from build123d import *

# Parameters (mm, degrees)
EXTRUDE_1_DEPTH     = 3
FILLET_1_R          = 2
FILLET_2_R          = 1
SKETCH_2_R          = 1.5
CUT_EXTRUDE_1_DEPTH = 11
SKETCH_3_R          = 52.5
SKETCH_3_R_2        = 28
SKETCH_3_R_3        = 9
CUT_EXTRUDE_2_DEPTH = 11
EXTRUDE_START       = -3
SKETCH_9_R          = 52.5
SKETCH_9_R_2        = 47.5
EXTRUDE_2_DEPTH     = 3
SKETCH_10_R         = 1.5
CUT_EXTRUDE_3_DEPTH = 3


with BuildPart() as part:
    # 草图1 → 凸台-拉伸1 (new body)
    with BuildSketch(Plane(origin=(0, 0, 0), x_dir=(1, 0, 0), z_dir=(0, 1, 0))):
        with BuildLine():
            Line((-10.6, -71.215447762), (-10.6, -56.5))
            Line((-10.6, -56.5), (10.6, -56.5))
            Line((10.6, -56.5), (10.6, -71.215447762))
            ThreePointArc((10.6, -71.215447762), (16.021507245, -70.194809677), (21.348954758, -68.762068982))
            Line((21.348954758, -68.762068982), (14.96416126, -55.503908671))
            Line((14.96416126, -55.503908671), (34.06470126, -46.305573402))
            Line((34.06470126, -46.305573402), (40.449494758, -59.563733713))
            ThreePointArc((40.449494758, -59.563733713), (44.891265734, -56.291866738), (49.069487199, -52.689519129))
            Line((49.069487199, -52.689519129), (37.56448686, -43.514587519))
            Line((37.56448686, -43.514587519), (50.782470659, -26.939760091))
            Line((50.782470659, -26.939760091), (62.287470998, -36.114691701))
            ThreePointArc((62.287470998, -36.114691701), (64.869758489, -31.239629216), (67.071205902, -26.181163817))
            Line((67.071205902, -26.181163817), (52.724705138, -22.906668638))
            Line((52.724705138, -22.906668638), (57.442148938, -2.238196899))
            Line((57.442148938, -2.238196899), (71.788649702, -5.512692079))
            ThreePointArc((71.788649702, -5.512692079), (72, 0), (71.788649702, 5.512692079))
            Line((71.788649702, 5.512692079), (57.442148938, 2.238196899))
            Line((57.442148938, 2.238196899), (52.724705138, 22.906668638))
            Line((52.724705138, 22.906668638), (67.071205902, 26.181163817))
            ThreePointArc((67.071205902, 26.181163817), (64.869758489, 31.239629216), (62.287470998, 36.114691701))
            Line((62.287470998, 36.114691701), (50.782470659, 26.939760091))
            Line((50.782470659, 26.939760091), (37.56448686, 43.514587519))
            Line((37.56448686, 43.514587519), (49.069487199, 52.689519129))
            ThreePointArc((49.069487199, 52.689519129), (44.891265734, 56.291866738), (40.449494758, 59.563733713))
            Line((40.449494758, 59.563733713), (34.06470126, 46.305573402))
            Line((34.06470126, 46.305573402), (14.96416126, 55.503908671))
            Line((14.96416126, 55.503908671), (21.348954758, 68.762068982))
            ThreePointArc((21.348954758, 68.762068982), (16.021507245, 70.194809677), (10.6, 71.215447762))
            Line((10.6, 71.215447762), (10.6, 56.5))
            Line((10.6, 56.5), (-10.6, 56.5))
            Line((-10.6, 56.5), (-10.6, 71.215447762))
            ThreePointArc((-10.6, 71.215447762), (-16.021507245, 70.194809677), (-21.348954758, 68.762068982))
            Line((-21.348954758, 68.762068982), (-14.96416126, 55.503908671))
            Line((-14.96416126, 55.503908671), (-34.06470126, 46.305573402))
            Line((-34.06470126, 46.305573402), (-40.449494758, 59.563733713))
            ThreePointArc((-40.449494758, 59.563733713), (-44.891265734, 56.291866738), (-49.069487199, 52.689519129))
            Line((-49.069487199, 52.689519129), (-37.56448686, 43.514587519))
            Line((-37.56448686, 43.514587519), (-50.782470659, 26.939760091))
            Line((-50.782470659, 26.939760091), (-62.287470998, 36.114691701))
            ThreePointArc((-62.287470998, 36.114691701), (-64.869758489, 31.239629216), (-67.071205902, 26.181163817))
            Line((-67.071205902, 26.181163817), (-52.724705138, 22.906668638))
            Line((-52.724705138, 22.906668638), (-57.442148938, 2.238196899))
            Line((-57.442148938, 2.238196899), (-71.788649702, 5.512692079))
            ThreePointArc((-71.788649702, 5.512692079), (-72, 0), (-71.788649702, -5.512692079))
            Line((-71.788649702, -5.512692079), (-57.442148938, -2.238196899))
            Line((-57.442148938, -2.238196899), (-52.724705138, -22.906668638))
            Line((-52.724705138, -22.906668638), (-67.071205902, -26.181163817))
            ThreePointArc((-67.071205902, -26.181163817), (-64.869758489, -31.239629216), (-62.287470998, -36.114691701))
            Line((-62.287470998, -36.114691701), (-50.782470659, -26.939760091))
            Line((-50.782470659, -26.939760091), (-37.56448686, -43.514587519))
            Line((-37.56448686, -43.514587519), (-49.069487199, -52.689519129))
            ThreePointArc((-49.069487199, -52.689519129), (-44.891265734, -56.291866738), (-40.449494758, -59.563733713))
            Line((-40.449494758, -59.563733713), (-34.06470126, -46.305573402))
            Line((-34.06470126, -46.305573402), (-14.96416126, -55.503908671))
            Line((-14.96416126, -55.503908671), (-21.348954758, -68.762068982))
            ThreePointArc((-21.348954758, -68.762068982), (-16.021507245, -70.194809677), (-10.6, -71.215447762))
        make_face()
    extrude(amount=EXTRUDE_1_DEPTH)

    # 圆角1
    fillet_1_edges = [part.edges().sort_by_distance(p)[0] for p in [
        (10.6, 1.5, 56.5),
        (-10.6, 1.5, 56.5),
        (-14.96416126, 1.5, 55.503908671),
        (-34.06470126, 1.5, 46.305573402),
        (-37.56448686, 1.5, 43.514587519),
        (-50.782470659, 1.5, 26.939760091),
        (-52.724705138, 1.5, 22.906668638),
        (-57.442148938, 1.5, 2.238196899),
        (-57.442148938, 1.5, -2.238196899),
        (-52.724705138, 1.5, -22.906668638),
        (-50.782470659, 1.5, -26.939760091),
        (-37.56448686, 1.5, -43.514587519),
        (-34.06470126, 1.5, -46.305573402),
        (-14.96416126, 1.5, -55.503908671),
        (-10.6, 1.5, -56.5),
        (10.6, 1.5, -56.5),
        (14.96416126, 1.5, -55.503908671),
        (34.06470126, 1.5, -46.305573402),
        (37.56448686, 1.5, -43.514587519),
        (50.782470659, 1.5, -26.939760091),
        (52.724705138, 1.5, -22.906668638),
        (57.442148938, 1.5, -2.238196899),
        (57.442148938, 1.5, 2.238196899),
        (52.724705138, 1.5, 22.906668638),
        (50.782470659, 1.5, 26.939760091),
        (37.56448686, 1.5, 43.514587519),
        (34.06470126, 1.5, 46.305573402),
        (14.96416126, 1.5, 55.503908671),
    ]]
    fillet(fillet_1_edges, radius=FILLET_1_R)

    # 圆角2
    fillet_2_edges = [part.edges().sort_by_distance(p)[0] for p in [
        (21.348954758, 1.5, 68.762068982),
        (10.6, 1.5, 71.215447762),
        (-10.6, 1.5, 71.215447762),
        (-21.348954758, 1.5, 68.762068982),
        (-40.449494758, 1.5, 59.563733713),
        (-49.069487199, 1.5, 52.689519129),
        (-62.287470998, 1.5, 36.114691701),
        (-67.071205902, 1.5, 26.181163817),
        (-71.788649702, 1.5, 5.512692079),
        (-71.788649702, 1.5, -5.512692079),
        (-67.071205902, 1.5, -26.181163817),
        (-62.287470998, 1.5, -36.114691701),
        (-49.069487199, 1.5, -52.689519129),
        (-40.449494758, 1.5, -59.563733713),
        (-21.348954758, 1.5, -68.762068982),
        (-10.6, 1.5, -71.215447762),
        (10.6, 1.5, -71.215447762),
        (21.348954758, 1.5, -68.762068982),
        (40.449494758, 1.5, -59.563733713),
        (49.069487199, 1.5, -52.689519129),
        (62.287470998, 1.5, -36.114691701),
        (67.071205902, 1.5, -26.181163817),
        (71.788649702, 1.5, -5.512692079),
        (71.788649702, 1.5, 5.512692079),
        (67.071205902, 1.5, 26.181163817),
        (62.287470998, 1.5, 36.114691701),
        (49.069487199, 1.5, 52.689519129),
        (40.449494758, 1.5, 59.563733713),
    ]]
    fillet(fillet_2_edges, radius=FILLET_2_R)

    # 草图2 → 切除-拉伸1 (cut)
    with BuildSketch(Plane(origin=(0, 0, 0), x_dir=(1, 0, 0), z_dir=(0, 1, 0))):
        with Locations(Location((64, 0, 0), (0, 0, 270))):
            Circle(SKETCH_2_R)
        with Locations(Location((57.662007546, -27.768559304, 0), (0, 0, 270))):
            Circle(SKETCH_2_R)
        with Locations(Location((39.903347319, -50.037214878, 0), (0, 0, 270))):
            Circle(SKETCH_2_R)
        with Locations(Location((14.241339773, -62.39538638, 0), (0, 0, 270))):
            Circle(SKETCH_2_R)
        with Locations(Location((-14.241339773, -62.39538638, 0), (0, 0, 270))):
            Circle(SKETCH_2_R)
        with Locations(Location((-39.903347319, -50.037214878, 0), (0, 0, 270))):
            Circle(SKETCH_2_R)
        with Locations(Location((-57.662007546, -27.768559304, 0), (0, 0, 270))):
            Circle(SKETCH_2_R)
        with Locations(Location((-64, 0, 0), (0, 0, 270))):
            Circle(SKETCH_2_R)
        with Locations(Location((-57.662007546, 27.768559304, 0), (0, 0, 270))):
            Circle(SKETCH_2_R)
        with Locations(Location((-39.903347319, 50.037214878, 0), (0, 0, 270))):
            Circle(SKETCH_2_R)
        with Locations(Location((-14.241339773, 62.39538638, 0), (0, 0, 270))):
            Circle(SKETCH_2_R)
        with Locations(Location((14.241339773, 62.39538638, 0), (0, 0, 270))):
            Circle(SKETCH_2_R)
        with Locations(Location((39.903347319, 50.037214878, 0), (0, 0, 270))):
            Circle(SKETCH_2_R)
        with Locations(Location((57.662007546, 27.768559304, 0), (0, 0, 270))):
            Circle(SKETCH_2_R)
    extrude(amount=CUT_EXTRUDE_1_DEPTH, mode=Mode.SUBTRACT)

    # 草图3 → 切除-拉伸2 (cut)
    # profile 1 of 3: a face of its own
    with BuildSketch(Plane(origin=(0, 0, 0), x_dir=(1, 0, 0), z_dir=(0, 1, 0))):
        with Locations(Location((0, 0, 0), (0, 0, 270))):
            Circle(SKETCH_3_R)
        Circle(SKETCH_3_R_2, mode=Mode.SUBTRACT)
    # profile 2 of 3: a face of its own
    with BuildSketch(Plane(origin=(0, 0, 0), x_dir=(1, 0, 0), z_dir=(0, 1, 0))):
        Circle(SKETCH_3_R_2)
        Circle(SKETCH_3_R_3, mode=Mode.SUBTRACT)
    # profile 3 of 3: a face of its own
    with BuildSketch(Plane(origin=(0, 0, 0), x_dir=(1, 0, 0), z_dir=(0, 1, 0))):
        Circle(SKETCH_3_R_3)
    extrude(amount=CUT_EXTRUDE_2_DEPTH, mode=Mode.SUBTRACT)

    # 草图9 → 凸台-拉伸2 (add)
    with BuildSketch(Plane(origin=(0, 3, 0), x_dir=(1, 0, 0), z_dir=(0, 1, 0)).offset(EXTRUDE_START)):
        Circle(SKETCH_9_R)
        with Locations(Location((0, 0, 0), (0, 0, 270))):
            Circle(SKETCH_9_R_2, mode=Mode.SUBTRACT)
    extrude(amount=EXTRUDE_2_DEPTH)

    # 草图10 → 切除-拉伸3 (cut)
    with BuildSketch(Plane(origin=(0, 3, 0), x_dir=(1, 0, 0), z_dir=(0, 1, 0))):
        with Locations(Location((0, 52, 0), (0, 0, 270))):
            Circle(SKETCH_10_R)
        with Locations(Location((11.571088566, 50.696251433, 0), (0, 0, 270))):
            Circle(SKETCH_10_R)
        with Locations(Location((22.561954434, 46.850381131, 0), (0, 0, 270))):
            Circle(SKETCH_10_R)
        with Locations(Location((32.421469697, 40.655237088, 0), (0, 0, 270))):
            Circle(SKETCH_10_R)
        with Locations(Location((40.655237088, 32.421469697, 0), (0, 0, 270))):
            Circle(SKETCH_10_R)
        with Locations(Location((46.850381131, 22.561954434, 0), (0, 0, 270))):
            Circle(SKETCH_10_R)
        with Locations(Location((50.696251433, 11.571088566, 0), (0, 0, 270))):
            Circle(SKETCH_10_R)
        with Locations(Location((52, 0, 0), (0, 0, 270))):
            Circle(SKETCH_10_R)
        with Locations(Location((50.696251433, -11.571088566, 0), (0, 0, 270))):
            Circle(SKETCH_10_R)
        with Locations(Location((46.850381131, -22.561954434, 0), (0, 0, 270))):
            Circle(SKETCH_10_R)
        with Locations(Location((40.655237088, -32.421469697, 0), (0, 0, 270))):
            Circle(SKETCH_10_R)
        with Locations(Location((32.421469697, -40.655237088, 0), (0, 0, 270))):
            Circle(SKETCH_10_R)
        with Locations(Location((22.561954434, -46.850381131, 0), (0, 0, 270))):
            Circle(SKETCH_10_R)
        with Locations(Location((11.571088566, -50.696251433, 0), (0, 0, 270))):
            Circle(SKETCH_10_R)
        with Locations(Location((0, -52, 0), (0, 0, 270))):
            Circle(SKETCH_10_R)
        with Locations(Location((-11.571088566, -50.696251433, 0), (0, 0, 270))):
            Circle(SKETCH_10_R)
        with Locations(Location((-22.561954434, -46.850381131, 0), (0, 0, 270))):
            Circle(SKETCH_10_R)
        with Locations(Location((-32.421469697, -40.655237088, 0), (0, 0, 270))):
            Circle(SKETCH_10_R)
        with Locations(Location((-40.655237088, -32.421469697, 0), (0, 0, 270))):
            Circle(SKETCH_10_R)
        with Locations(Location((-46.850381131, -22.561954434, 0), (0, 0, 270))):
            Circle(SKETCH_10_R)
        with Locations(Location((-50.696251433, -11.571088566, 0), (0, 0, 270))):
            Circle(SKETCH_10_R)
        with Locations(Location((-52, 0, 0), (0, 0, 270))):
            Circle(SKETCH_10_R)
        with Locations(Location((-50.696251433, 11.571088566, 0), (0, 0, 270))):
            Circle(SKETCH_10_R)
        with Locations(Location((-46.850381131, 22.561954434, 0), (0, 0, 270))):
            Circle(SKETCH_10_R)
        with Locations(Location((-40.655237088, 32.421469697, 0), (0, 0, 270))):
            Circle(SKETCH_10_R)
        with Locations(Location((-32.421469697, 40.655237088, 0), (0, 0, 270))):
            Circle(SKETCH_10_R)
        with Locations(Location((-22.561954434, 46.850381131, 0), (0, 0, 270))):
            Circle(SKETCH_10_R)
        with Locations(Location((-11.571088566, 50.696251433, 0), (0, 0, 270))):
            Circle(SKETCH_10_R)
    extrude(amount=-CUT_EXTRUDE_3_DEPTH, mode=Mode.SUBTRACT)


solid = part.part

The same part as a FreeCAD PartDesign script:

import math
import FreeCAD as App
import Part
import Sketcher
from FreeCAD import Vector
Q = App.Units.Quantity


def edges_at(feature, points):
    """Names of the edges that pass closest to the given points."""
    edges = feature.Shape.Edges
    near = lambda p: min(range(len(edges)), key=lambda i: edges[i].distToShape(Part.Vertex(*p))[0])
    return sorted({f"Edge{near(p) + 1}" for p in points})

doc = App.newDocument("Part")
body = doc.addObject("PartDesign::Body", "Body")

sketch1 = body.newObject("Sketcher::SketchObject", "Sketch")
sketch1.AttachmentSupport = (doc.getObject("XZ_Plane"), [""])
sketch1.MapMode = "FlatFace"
sketch1.addGeometry([
    Part.LineSegment(Vector(-11, 71, 0), Vector(-11, 56, 0)),
    Part.LineSegment(Vector(-11, 56, 0), Vector(11, 56, 0)),
    Part.LineSegment(Vector(11, 56, 0), Vector(11, 71, 0)),
    Part.ArcOfCircle(Part.Circle(Vector(0, 0, 0), Vector(0, 0, 1), 72), math.radians(72.75), math.radians(81.53)),
    Part.LineSegment(Vector(21, 69, 0), Vector(15, 56, 0)),
    Part.LineSegment(Vector(15, 56, 0), Vector(34, 46, 0)),
    Part.LineSegment(Vector(34, 46, 0), Vector(40, 60, 0)),
    Part.ArcOfCircle(Part.Circle(Vector(0, 0, 0), Vector(0, 0, 1), 72), math.radians(47.04), math.radians(55.82)),
    Part.LineSegment(Vector(49, 53, 0), Vector(38, 44, 0)),
    Part.LineSegment(Vector(38, 44, 0), Vector(51, 27, 0)),
    Part.LineSegment(Vector(51, 27, 0), Vector(62, 36, 0)),
    Part.ArcOfCircle(Part.Circle(Vector(0, 0, 0), Vector(0, 0, 1), 72), math.radians(21.32), math.radians(30.11)),
    Part.LineSegment(Vector(67, 26, 0), Vector(53, 23, 0)),
    Part.LineSegment(Vector(53, 23, 0), Vector(57, 2, 0)),
    Part.LineSegment(Vector(57, 2, 0), Vector(72, 6, 0)),
    Part.ArcOfCircle(Part.Circle(Vector(0, 0, 0), Vector(0, 0, 1), 72), math.radians(-4.39), math.radians(4.39)),
    Part.LineSegment(Vector(72, -6, 0), Vector(57, -2, 0)),
    Part.LineSegment(Vector(57, -2, 0), Vector(53, -23, 0)),
    Part.LineSegment(Vector(53, -23, 0), Vector(67, -26, 0)),
    Part.ArcOfCircle(Part.Circle(Vector(0, 0, 0), Vector(0, 0, 1), 72), math.radians(-30.11), math.radians(-21.32)),
    Part.LineSegment(Vector(62, -36, 0), Vector(51, -27, 0)),
    Part.LineSegment(Vector(51, -27, 0), Vector(38, -44, 0)),
    Part.LineSegment(Vector(38, -44, 0), Vector(49, -53, 0)),
    Part.ArcOfCircle(Part.Circle(Vector(0, 0, 0), Vector(0, 0, 1), 72), math.radians(-55.82), math.radians(-47.04)),
    Part.LineSegment(Vector(40, -60, 0), Vector(34, -46, 0)),
    Part.LineSegment(Vector(34, -46, 0), Vector(15, -56, 0)),
    Part.LineSegment(Vector(15, -56, 0), Vector(21, -69, 0)),
    Part.ArcOfCircle(Part.Circle(Vector(0, 0, 0), Vector(0, 0, 1), 72), math.radians(-81.53), math.radians(-72.75)),
    Part.LineSegment(Vector(11, -71, 0), Vector(11, -56, 0)),
    Part.LineSegment(Vector(11, -56, 0), Vector(-11, -56, 0)),
    Part.LineSegment(Vector(-11, -56, 0), Vector(-11, -71, 0)),
    Part.ArcOfCircle(Part.Circle(Vector(0, 0, 0), Vector(0, 0, 1), 72), math.radians(-107.25), math.radians(-98.47)),
    Part.LineSegment(Vector(-21, -69, 0), Vector(-15, -56, 0)),
    Part.LineSegment(Vector(-15, -56, 0), Vector(-34, -46, 0)),
    Part.LineSegment(Vector(-34, -46, 0), Vector(-40, -60, 0)),
    Part.ArcOfCircle(Part.Circle(Vector(0, 0, 0), Vector(0, 0, 1), 72), math.radians(-132.96), math.radians(-124.18)),
    Part.LineSegment(Vector(-49, -53, 0), Vector(-38, -44, 0)),
    Part.LineSegment(Vector(-38, -44, 0), Vector(-51, -27, 0)),
    Part.LineSegment(Vector(-51, -27, 0), Vector(-62, -36, 0)),
    Part.ArcOfCircle(Part.Circle(Vector(0, 0, 0), Vector(0, 0, 1), 72), math.radians(-158.68), math.radians(-149.89)),
    Part.LineSegment(Vector(-67, -26, 0), Vector(-53, -23, 0)),
    Part.LineSegment(Vector(-53, -23, 0), Vector(-57, -2, 0)),
    Part.LineSegment(Vector(-57, -2, 0), Vector(-72, -6, 0)),
    Part.ArcOfCircle(Part.Circle(Vector(0, 0, 0), Vector(0, 0, 1), 72), math.radians(175.61), math.radians(184.39)),
    Part.LineSegment(Vector(-72, 6, 0), Vector(-57, 2, 0)),
    Part.LineSegment(Vector(-57, 2, 0), Vector(-53, 23, 0)),
    Part.LineSegment(Vector(-53, 23, 0), Vector(-67, 26, 0)),
    Part.ArcOfCircle(Part.Circle(Vector(0, 0, 0), Vector(0, 0, 1), 72), math.radians(149.89), math.radians(158.68)),
    Part.LineSegment(Vector(-62, 36, 0), Vector(-51, 27, 0)),
    Part.LineSegment(Vector(-51, 27, 0), Vector(-38, 44, 0)),
    Part.LineSegment(Vector(-38, 44, 0), Vector(-49, 53, 0)),
    Part.ArcOfCircle(Part.Circle(Vector(0, 0, 0), Vector(0, 0, 1), 72), math.radians(124.18), math.radians(132.96)),
    Part.LineSegment(Vector(-40, 60, 0), Vector(-34, 46, 0)),
    Part.LineSegment(Vector(-34, 46, 0), Vector(-15, 56, 0)),
    Part.LineSegment(Vector(-15, 56, 0), Vector(-21, 69, 0)),
    Part.ArcOfCircle(Part.Circle(Vector(0, 0, 0), Vector(0, 0, 1), 72), math.radians(98.47), math.radians(107.25)),
], False)
sketch1.addConstraint([
    Sketcher.Constraint("Coincident", 0, 2, 1, 1),
    Sketcher.Constraint("Coincident", 1, 2, 2, 1),
    Sketcher.Constraint("Coincident", 2, 2, 3, 2),
    Sketcher.Constraint("Coincident", 3, 1, 4, 1),
    Sketcher.Constraint("Coincident", 4, 2, 5, 1),
    Sketcher.Constraint("Coincident", 5, 2, 6, 1),
    Sketcher.Constraint("Coincident", 6, 2, 7, 2),
    Sketcher.Constraint("Coincident", 7, 1, 8, 1),
    Sketcher.Constraint("Coincident", 8, 2, 9, 1),
    Sketcher.Constraint("Coincident", 9, 2, 10, 1),
    Sketcher.Constraint("Coincident", 10, 2, 11, 2),
    Sketcher.Constraint("Coincident", 11, 1, 12, 1),
    Sketcher.Constraint("Coincident", 12, 2, 13, 1),
    Sketcher.Constraint("Coincident", 13, 2, 14, 1),
    Sketcher.Constraint("Coincident", 14, 2, 15, 2),
    Sketcher.Constraint("Coincident", 15, 1, 16, 1),
    Sketcher.Constraint("Coincident", 16, 2, 17, 1),
    Sketcher.Constraint("Coincident", 17, 2, 18, 1),
    Sketcher.Constraint("Coincident", 18, 2, 19, 2),
    Sketcher.Constraint("Coincident", 19, 1, 20, 1),
    Sketcher.Constraint("Coincident", 20, 2, 21, 1),
    Sketcher.Constraint("Coincident", 21, 2, 22, 1),
    Sketcher.Constraint("Coincident", 22, 2, 23, 2),
    Sketcher.Constraint("Coincident", 23, 1, 24, 1),
    Sketcher.Constraint("Coincident", 24, 2, 25, 1),
    Sketcher.Constraint("Coincident", 25, 2, 26, 1),
    Sketcher.Constraint("Coincident", 26, 2, 27, 2),
    Sketcher.Constraint("Coincident", 27, 1, 28, 1),
    Sketcher.Constraint("Coincident", 28, 2, 29, 1),
    Sketcher.Constraint("Coincident", 29, 2, 30, 1),
    Sketcher.Constraint("Coincident", 30, 2, 31, 2),
    Sketcher.Constraint("Coincident", 31, 1, 32, 1),
    Sketcher.Constraint("Coincident", 32, 2, 33, 1),
    Sketcher.Constraint("Coincident", 33, 2, 34, 1),
    Sketcher.Constraint("Coincident", 34, 2, 35, 2),
    Sketcher.Constraint("Coincident", 35, 1, 36, 1),
    Sketcher.Constraint("Coincident", 36, 2, 37, 1),
    Sketcher.Constraint("Coincident", 37, 2, 38, 1),
    Sketcher.Constraint("Coincident", 38, 2, 39, 2),
    Sketcher.Constraint("Coincident", 39, 1, 40, 1),
    Sketcher.Constraint("Coincident", 40, 2, 41, 1),
    Sketcher.Constraint("Coincident", 41, 2, 42, 1),
    Sketcher.Constraint("Coincident", 42, 2, 43, 2),
    Sketcher.Constraint("Coincident", 43, 1, 44, 1),
    Sketcher.Constraint("Coincident", 44, 2, 45, 1),
    Sketcher.Constraint("Coincident", 45, 2, 46, 1),
    Sketcher.Constraint("Coincident", 46, 2, 47, 2),
    Sketcher.Constraint("Coincident", 47, 1, 48, 1),
    Sketcher.Constraint("Coincident", 48, 2, 49, 1),
    Sketcher.Constraint("Coincident", 49, 2, 50, 1),
    Sketcher.Constraint("Coincident", 50, 2, 51, 2),
    Sketcher.Constraint("Coincident", 51, 1, 52, 1),
    Sketcher.Constraint("Coincident", 52, 2, 53, 1),
    Sketcher.Constraint("Coincident", 53, 2, 54, 1),
    Sketcher.Constraint("Coincident", 54, 2, 55, 2),
    Sketcher.Constraint("Coincident", 55, 1, 0, 1),
    Sketcher.Constraint("Vertical", 0),
    Sketcher.Constraint("Horizontal", 1),
    Sketcher.Constraint("Vertical", 2),
    Sketcher.Constraint("Vertical", 28),
    Sketcher.Constraint("Horizontal", 29),
    Sketcher.Constraint("Vertical", 30),
    Sketcher.Constraint("Coincident", 3, 3, -1, 1),
    Sketcher.Constraint("Coincident", 7, 3, -1, 1),
    Sketcher.Constraint("Coincident", 11, 3, -1, 1),
    Sketcher.Constraint("Coincident", 15, 3, -1, 1),
    Sketcher.Constraint("Coincident", 19, 3, -1, 1),
    Sketcher.Constraint("Coincident", 23, 3, -1, 1),
    Sketcher.Constraint("Coincident", 27, 3, -1, 1),
    Sketcher.Constraint("Coincident", 31, 3, -1, 1),
    Sketcher.Constraint("Coincident", 35, 3, -1, 1),
    Sketcher.Constraint("Coincident", 39, 3, -1, 1),
    Sketcher.Constraint("Coincident", 43, 3, -1, 1),
    Sketcher.Constraint("Coincident", 47, 3, -1, 1),
    Sketcher.Constraint("Coincident", 51, 3, -1, 1),
    Sketcher.Constraint("Coincident", 55, 3, -1, 1),
    Sketcher.Constraint("Equal", 3, 7),
    Sketcher.Constraint("Equal", 7, 11),
    Sketcher.Constraint("Equal", 11, 15),
    Sketcher.Constraint("Equal", 15, 19),
    Sketcher.Constraint("Equal", 19, 23),
    Sketcher.Constraint("Equal", 23, 27),
    Sketcher.Constraint("Equal", 27, 31),
    Sketcher.Constraint("Equal", 31, 35),
    Sketcher.Constraint("Equal", 35, 39),
    Sketcher.Constraint("Equal", 39, 43),
    Sketcher.Constraint("Equal", 43, 47),
    Sketcher.Constraint("Equal", 47, 51),
    Sketcher.Constraint("Equal", 51, 55),
    Sketcher.Constraint("Symmetric", 0, 2, 28, 2, -1, 1),
    Sketcher.Constraint("Symmetric", 4, 2, 32, 2, -1, 1),
    Sketcher.Constraint("Symmetric", 5, 2, 33, 2, -1, 1),
    Sketcher.Constraint("Symmetric", 8, 2, 36, 2, -1, 1),
    Sketcher.Constraint("Symmetric", 9, 2, 37, 2, -1, 1),
    Sketcher.Constraint("Symmetric", 12, 2, 40, 2, -1, 1),
    Sketcher.Constraint("Symmetric", 13, 2, 41, 2, -1, 1),
    Sketcher.Constraint("Symmetric", 16, 2, 44, 2, -1, 1),
    Sketcher.Constraint("Symmetric", 17, 2, 45, 2, -1, 1),
    Sketcher.Constraint("Symmetric", 20, 2, 48, 2, -1, 1),
    Sketcher.Constraint("Symmetric", 21, 2, 49, 2, -1, 1),
    Sketcher.Constraint("Symmetric", 24, 2, 52, 2, -1, 1),
    Sketcher.Constraint("Symmetric", 25, 2, 53, 2, -1, 1),
    Sketcher.Constraint("Symmetric", 25, 2, 32, 2, -2),
    Sketcher.Constraint("Symmetric", 24, 2, 33, 2, -2),
    Sketcher.Constraint("Symmetric", 21, 2, 36, 2, -2),
    Sketcher.Constraint("Symmetric", 20, 2, 37, 2, -2),
    Sketcher.Constraint("Symmetric", 17, 2, 40, 2, -2),
    Sketcher.Constraint("Symmetric", 16, 2, 41, 2, -2),
    Sketcher.Constraint("Perpendicular", 4, 5),
    Sketcher.Constraint("Perpendicular", 5, 6),
    Sketcher.Constraint("Perpendicular", 8, 9),
    Sketcher.Constraint("Perpendicular", 9, 10),
    Sketcher.Constraint("Perpendicular", 12, 13),
    Sketcher.Constraint("Perpendicular", 13, 14),
    Sketcher.Constraint("Perpendicular", 16, 17),
    Sketcher.Constraint("Perpendicular", 17, 18),
    Sketcher.Constraint("Perpendicular", 20, 21),
    Sketcher.Constraint("Perpendicular", 21, 22),
    Sketcher.Constraint("Perpendicular", 24, 25),
    Sketcher.Constraint("Perpendicular", 25, 26),
    Sketcher.Constraint("Parallel", 6, 32),
    Sketcher.Constraint("Perpendicular", 33, 34),
    Sketcher.Constraint("Parallel", 10, 36),
    Sketcher.Constraint("Perpendicular", 37, 38),
    Sketcher.Constraint("Parallel", 14, 40),
    Sketcher.Constraint("Perpendicular", 41, 42),
    Sketcher.Constraint("Parallel", 18, 44),
    Sketcher.Constraint("Perpendicular", 45, 46),
    Sketcher.Constraint("Parallel", 22, 48),
    Sketcher.Constraint("Perpendicular", 49, 50),
    Sketcher.Constraint("Parallel", 26, 52),
    Sketcher.Constraint("Perpendicular", 53, 54),
    Sketcher.Constraint("Horizontal", 27, 1, 30, 2),
    Sketcher.Constraint("Horizontal", 2, 2, 55, 1),
    Sketcher.Constraint("Equal", 4, 6),
    Sketcher.Constraint("Equal", 6, 8),
    Sketcher.Constraint("Equal", 5, 9),
    Sketcher.Constraint("Equal", 8, 10),
    Sketcher.Constraint("Equal", 10, 12),
    Sketcher.Constraint("Equal", 9, 13),
    Sketcher.Constraint("Equal", 12, 14),
    Sketcher.Constraint("Radius", 3, Q("72 mm")),
    Sketcher.Constraint("DistanceX", 1, 1, 1, 2, Q("21.2 mm")),
    Sketcher.Constraint("Distance", 5, Q("21.2 mm")),
    Sketcher.Constraint("DistanceY", -1, 1, 0, 2, Q("56.5 mm")),
    Sketcher.Constraint("DistanceX", -1, 1, 5, 2, Q("34.064701 mm")),
    Sketcher.Constraint("DistanceX", -1, 1, 4, 2, Q("14.964161 mm")),
    Sketcher.Constraint("DistanceY", -1, 1, 7, 1, Q("52.689519 mm")),
    Sketcher.Constraint("DistanceY", -1, 1, 12, 2, Q("22.906669 mm")),
])
pad1 = body.newObject("PartDesign::Pad", "Pad")
pad1.Profile = sketch1
pad1.Length = 3
pad1.Reversed = True
doc.recompute()

fillet = body.newObject("PartDesign::Fillet", "Fillet")
fillet.Base = (pad1, edges_at(pad1, [
    (10.6, 1.5, 56.5),
    (-10.6, 1.5, 56.5),
    (-14.964, 1.5, 55.504),
    (-34.065, 1.5, 46.306),
    (-37.564, 1.5, 43.515),
    (-50.782, 1.5, 26.94),
    (-52.725, 1.5, 22.907),
    (-57.442, 1.5, 2.238),
    (-57.442, 1.5, -2.238),
    (-52.725, 1.5, -22.907),
    (-50.782, 1.5, -26.94),
    (-37.564, 1.5, -43.515),
    (-34.065, 1.5, -46.306),
    (-14.964, 1.5, -55.504),
    (-10.6, 1.5, -56.5),
    (10.6, 1.5, -56.5),
    (14.964, 1.5, -55.504),
    (34.065, 1.5, -46.306),
    (37.564, 1.5, -43.515),
    (50.782, 1.5, -26.94),
    (52.725, 1.5, -22.907),
    (57.442, 1.5, -2.238),
    (57.442, 1.5, 2.238),
    (52.725, 1.5, 22.907),
    (50.782, 1.5, 26.94),
    (37.564, 1.5, 43.515),
    (34.065, 1.5, 46.306),
    (14.964, 1.5, 55.504),
]))
fillet.Radius = 2
doc.recompute()

fillet2 = body.newObject("PartDesign::Fillet", "Fillet001")
fillet2.Base = (fillet, edges_at(fillet, [
    (21.349, 1.5, 68.762),
    (10.6, 1.5, 71.215),
    (-10.6, 1.5, 71.215),
    (-21.349, 1.5, 68.762),
    (-40.449, 1.5, 59.564),
    (-49.069, 1.5, 52.69),
    (-62.287, 1.5, 36.115),
    (-67.071, 1.5, 26.181),
    (-71.789, 1.5, 5.513),
    (-71.789, 1.5, -5.513),
    (-67.071, 1.5, -26.181),
    (-62.287, 1.5, -36.115),
    (-49.069, 1.5, -52.69),
    (-40.449, 1.5, -59.564),
    (-21.349, 1.5, -68.762),
    (-10.6, 1.5, -71.215),
    (10.6, 1.5, -71.215),
    (21.349, 1.5, -68.762),
    (40.449, 1.5, -59.564),
    (49.069, 1.5, -52.69),
    (62.287, 1.5, -36.115),
    (67.071, 1.5, -26.181),
    (71.789, 1.5, -5.513),
    (71.789, 1.5, 5.513),
    (67.071, 1.5, 26.181),
    (62.287, 1.5, 36.115),
    (49.069, 1.5, 52.69),
    (40.449, 1.5, 59.564),
]))
fillet2.Radius = 1

sketch2 = body.newObject("Sketcher::SketchObject", "Sketch001")
sketch2.AttachmentSupport = (doc.getObject("XZ_Plane"), [""])
sketch2.MapMode = "FlatFace"
sketch2.addGeometry([
    Part.Circle(Vector(64, 0, 0), Vector(0, 0, 1), 1.5),
    Part.Circle(Vector(57.7, 27.8, 0), Vector(0, 0, 1), 1.5),
    Part.Circle(Vector(39.9, 50, 0), Vector(0, 0, 1), 1.5),
    Part.Circle(Vector(14.2, 62.4, 0), Vector(0, 0, 1), 1.5),
    Part.Circle(Vector(-14.2, 62.4, 0), Vector(0, 0, 1), 1.5),
    Part.Circle(Vector(-39.9, 50, 0), Vector(0, 0, 1), 1.5),
    Part.Circle(Vector(-57.7, 27.8, 0), Vector(0, 0, 1), 1.5),
    Part.Circle(Vector(-64, 0, 0), Vector(0, 0, 1), 1.5),
    Part.Circle(Vector(-57.7, -27.8, 0), Vector(0, 0, 1), 1.5),
    Part.Circle(Vector(-39.9, -50, 0), Vector(0, 0, 1), 1.5),
    Part.Circle(Vector(-14.2, -62.4, 0), Vector(0, 0, 1), 1.5),
    Part.Circle(Vector(14.2, -62.4, 0), Vector(0, 0, 1), 1.5),
    Part.Circle(Vector(39.9, -50, 0), Vector(0, 0, 1), 1.5),
    Part.Circle(Vector(57.7, -27.8, 0), Vector(0, 0, 1), 1.5),
], False)
sketch2.addConstraint([
    Sketcher.Constraint("Equal", 0, 1),
    Sketcher.Constraint("Equal", 1, 2),
    Sketcher.Constraint("Equal", 2, 3),
    Sketcher.Constraint("Equal", 3, 4),
    Sketcher.Constraint("Equal", 4, 5),
    Sketcher.Constraint("Equal", 5, 6),
    Sketcher.Constraint("Equal", 6, 7),
    Sketcher.Constraint("Equal", 7, 8),
    Sketcher.Constraint("Equal", 8, 9),
    Sketcher.Constraint("Equal", 9, 10),
    Sketcher.Constraint("Equal", 10, 11),
    Sketcher.Constraint("Equal", 11, 12),
    Sketcher.Constraint("Equal", 12, 13),
    Sketcher.Constraint("Symmetric", 0, 3, 7, 3, -1, 1),
    Sketcher.Constraint("Symmetric", 1, 3, 8, 3, -1, 1),
    Sketcher.Constraint("Symmetric", 2, 3, 9, 3, -1, 1),
    Sketcher.Constraint("Symmetric", 3, 3, 10, 3, -1, 1),
    Sketcher.Constraint("Symmetric", 4, 3, 11, 3, -1, 1),
    Sketcher.Constraint("Symmetric", 5, 3, 12, 3, -1, 1),
    Sketcher.Constraint("Symmetric", 6, 3, 13, 3, -1, 1),
    Sketcher.Constraint("Symmetric", 3, 3, 4, 3, -2),
    Sketcher.Constraint("Symmetric", 2, 3, 5, 3, -2),
    Sketcher.Constraint("Symmetric", 1, 3, 6, 3, -2),
    Sketcher.Constraint("PointOnObject", 0, 3, -1),
    Sketcher.Constraint("Diameter", 0, Q("3 mm")),
    Sketcher.Constraint("DistanceX", -1, 1, 0, 3, Q("64 mm")),
    Sketcher.Constraint("DistanceY", -1, 1, 1, 3, Q("27.768559 mm")),
    Sketcher.Constraint("DistanceX", -1, 1, 3, 3, Q("14.24134 mm")),
    Sketcher.Constraint("DistanceX", 2, 3, 1, 3, Q("17.75866 mm")),
    Sketcher.Constraint("DistanceY", 2, 3, 3, 3, Q("12.358172 mm")),
    Sketcher.Constraint("DistanceY", 9, 3, 5, 3, Q("100.07443 mm")),
    Sketcher.Constraint("DistanceX", -1, 1, 1, 3, Q("57.662008 mm")),
])
pocket1 = body.newObject("PartDesign::Pocket", "Pocket")
pocket1.Profile = sketch2
pocket1.Length = 11

sketch3 = body.newObject("Sketcher::SketchObject", "Sketch002")
sketch3.AttachmentSupport = (doc.getObject("XZ_Plane"), [""])
sketch3.MapMode = "FlatFace"
sketch3.addGeometry(Part.Circle(Vector(0, 0, 0), Vector(0, 0, 1), 52), False)
sketch3.addConstraint([
    Sketcher.Constraint("Coincident", 0, 3, -1, 1),
    Sketcher.Constraint("Diameter", 0, Q("105 mm")),
])
pocket2 = body.newObject("PartDesign::Pocket", "Pocket001")
pocket2.Profile = sketch3
pocket2.Length = 11

sketch4 = body.newObject("Sketcher::SketchObject", "Sketch003")
sketch4.AttachmentSupport = (doc.getObject("XZ_Plane"), [""])
sketch4.MapMode = "FlatFace"
sketch4.addGeometry([
    Part.Circle(Vector(0, 0, 0), Vector(0, 0, 1), 52),
    Part.Circle(Vector(0, 0, 0), Vector(0, 0, 1), 48),
], False)
sketch4.addConstraint([
    Sketcher.Constraint("Coincident", 0, 3, -1, 1),
    Sketcher.Constraint("Coincident", 1, 3, -1, 1),
    Sketcher.Constraint("Diameter", 0, Q("105 mm")),
    Sketcher.Constraint("Diameter", 1, Q("95 mm")),
])
pad2 = body.newObject("PartDesign::Pad", "Pad001")
pad2.Profile = sketch4
pad2.Length = 3
pad2.Reversed = True

sketch5 = body.newObject("Sketcher::SketchObject", "Sketch004")
sketch5.AttachmentSupport = (doc.getObject("XZ_Plane"), [""])
sketch5.MapMode = "FlatFace"
sketch5.AttachmentOffset = App.Placement(Vector(0, 0, -3), App.Rotation())
sketch5.addGeometry([
    Part.Circle(Vector(0, -52, 0), Vector(0, 0, 1), 1.5),
    Part.Circle(Vector(11.6, -50.7, 0), Vector(0, 0, 1), 1.5),
    Part.Circle(Vector(22.6, -46.9, 0), Vector(0, 0, 1), 1.5),
    Part.Circle(Vector(32.4, -40.7, 0), Vector(0, 0, 1), 1.5),
    Part.Circle(Vector(40.7, -32.4, 0), Vector(0, 0, 1), 1.5),
    Part.Circle(Vector(46.9, -22.6, 0), Vector(0, 0, 1), 1.5),
    Part.Circle(Vector(50.7, -11.6, 0), Vector(0, 0, 1), 1.5),
    Part.Circle(Vector(52, 0, 0), Vector(0, 0, 1), 1.5),
    Part.Circle(Vector(50.7, 11.6, 0), Vector(0, 0, 1), 1.5),
    Part.Circle(Vector(46.9, 22.6, 0), Vector(0, 0, 1), 1.5),
    Part.Circle(Vector(40.7, 32.4, 0), Vector(0, 0, 1), 1.5),
    Part.Circle(Vector(32.4, 40.7, 0), Vector(0, 0, 1), 1.5),
    Part.Circle(Vector(22.6, 46.9, 0), Vector(0, 0, 1), 1.5),
    Part.Circle(Vector(11.6, 50.7, 0), Vector(0, 0, 1), 1.5),
    Part.Circle(Vector(0, 52, 0), Vector(0, 0, 1), 1.5),
    Part.Circle(Vector(-11.6, 50.7, 0), Vector(0, 0, 1), 1.5),
    Part.Circle(Vector(-22.6, 46.9, 0), Vector(0, 0, 1), 1.5),
    Part.Circle(Vector(-32.4, 40.7, 0), Vector(0, 0, 1), 1.5),
    Part.Circle(Vector(-40.7, 32.4, 0), Vector(0, 0, 1), 1.5),
    Part.Circle(Vector(-46.9, 22.6, 0), Vector(0, 0, 1), 1.5),
    Part.Circle(Vector(-50.7, 11.6, 0), Vector(0, 0, 1), 1.5),
    Part.Circle(Vector(-52, 0, 0), Vector(0, 0, 1), 1.5),
    Part.Circle(Vector(-50.7, -11.6, 0), Vector(0, 0, 1), 1.5),
    Part.Circle(Vector(-46.9, -22.6, 0), Vector(0, 0, 1), 1.5),
    Part.Circle(Vector(-40.7, -32.4, 0), Vector(0, 0, 1), 1.5),
    Part.Circle(Vector(-32.4, -40.7, 0), Vector(0, 0, 1), 1.5),
    Part.Circle(Vector(-22.6, -46.9, 0), Vector(0, 0, 1), 1.5),
    Part.Circle(Vector(-11.6, -50.7, 0), Vector(0, 0, 1), 1.5),
], False)
sketch5.addConstraint([
    Sketcher.Constraint("Equal", 0, 1),
    Sketcher.Constraint("Equal", 1, 2),
    Sketcher.Constraint("Equal", 2, 3),
    Sketcher.Constraint("Equal", 3, 4),
    Sketcher.Constraint("Equal", 4, 5),
    Sketcher.Constraint("Equal", 5, 6),
    Sketcher.Constraint("Equal", 6, 7),
    Sketcher.Constraint("Equal", 7, 8),
    Sketcher.Constraint("Equal", 8, 9),
    Sketcher.Constraint("Equal", 9, 10),
    Sketcher.Constraint("Equal", 10, 11),
    Sketcher.Constraint("Equal", 11, 12),
    Sketcher.Constraint("Equal", 12, 13),
    Sketcher.Constraint("Equal", 13, 14),
    Sketcher.Constraint("Equal", 14, 15),
    Sketcher.Constraint("Equal", 15, 16),
    Sketcher.Constraint("Equal", 16, 17),
    Sketcher.Constraint("Equal", 17, 18),
    Sketcher.Constraint("Equal", 18, 19),
    Sketcher.Constraint("Equal", 19, 20),
    Sketcher.Constraint("Equal", 20, 21),
    Sketcher.Constraint("Equal", 21, 22),
    Sketcher.Constraint("Equal", 22, 23),
    Sketcher.Constraint("Equal", 23, 24),
    Sketcher.Constraint("Equal", 24, 25),
    Sketcher.Constraint("Equal", 25, 26),
    Sketcher.Constraint("Equal", 26, 27),
    Sketcher.Constraint("Symmetric", 0, 3, 14, 3, -1, 1),
    Sketcher.Constraint("Symmetric", 1, 3, 15, 3, -1, 1),
    Sketcher.Constraint("Symmetric", 2, 3, 16, 3, -1, 1),
    Sketcher.Constraint("Symmetric", 3, 3, 17, 3, -1, 1),
    Sketcher.Constraint("Symmetric", 4, 3, 18, 3, -1, 1),
    Sketcher.Constraint("Symmetric", 5, 3, 19, 3, -1, 1),
    Sketcher.Constraint("Symmetric", 6, 3, 20, 3, -1, 1),
    Sketcher.Constraint("Symmetric", 7, 3, 21, 3, -1, 1),
    Sketcher.Constraint("Symmetric", 8, 3, 22, 3, -1, 1),
    Sketcher.Constraint("Symmetric", 9, 3, 23, 3, -1, 1),
    Sketcher.Constraint("Symmetric", 10, 3, 24, 3, -1, 1),
    Sketcher.Constraint("Symmetric", 11, 3, 25, 3, -1, 1),
    Sketcher.Constraint("Symmetric", 12, 3, 26, 3, -1, 1),
    Sketcher.Constraint("Symmetric", 13, 3, 27, 3, -1, 1),
    Sketcher.Constraint("Symmetric", 13, 3, 15, 3, -2),
    Sketcher.Constraint("Symmetric", 12, 3, 16, 3, -2),
    Sketcher.Constraint("Symmetric", 11, 3, 17, 3, -2),
    Sketcher.Constraint("Symmetric", 10, 3, 18, 3, -2),
    Sketcher.Constraint("Symmetric", 9, 3, 19, 3, -2),
    Sketcher.Constraint("Symmetric", 8, 3, 20, 3, -2),
    Sketcher.Constraint("PointOnObject", 0, 3, -2),
    Sketcher.Constraint("PointOnObject", 7, 3, -1),
    Sketcher.Constraint("Diameter", 0, Q("3 mm")),
    Sketcher.Constraint("DistanceY", 0, 3, -1, 1, Q("52 mm")),
    Sketcher.Constraint("DistanceX", -1, 1, 7, 3, Q("52 mm")),
    Sketcher.Constraint("DistanceX", -1, 1, 1, 3, Q("11.571089 mm")),
    Sketcher.Constraint("DistanceY", 1, 3, -1, 1, Q("50.696251 mm")),
    Sketcher.Constraint("DistanceY", 2, 3, -1, 1, Q("46.850381 mm")),
    Sketcher.Constraint("DistanceX", -1, 1, 3, 3, Q("32.42147 mm")),
    Sketcher.Constraint("DistanceY", 4, 3, -1, 1, Q("32.42147 mm")),
    Sketcher.Constraint("DistanceX", -1, 1, 5, 3, Q("46.850381 mm")),
    Sketcher.Constraint("DistanceX", -1, 1, 6, 3, Q("50.696251 mm")),
    Sketcher.Constraint("DistanceY", 6, 3, -1, 1, Q("11.571089 mm")),
    Sketcher.Constraint("DistanceX", 1, 3, 4, 3, Q("29.084149 mm")),
    Sketcher.Constraint("DistanceY", 3, 3, 6, 3, Q("29.084149 mm")),
    Sketcher.Constraint("DistanceY", 5, 3, 9, 3, Q("45.123909 mm")),
    Sketcher.Constraint("DistanceX", 16, 3, 12, 3, Q("45.123909 mm")),
])
pocket3 = body.newObject("PartDesign::Pocket", "Pocket002")
pocket3.Profile = sketch5
pocket3.Length = 3
pocket3.Reversed = True

doc.recompute()
